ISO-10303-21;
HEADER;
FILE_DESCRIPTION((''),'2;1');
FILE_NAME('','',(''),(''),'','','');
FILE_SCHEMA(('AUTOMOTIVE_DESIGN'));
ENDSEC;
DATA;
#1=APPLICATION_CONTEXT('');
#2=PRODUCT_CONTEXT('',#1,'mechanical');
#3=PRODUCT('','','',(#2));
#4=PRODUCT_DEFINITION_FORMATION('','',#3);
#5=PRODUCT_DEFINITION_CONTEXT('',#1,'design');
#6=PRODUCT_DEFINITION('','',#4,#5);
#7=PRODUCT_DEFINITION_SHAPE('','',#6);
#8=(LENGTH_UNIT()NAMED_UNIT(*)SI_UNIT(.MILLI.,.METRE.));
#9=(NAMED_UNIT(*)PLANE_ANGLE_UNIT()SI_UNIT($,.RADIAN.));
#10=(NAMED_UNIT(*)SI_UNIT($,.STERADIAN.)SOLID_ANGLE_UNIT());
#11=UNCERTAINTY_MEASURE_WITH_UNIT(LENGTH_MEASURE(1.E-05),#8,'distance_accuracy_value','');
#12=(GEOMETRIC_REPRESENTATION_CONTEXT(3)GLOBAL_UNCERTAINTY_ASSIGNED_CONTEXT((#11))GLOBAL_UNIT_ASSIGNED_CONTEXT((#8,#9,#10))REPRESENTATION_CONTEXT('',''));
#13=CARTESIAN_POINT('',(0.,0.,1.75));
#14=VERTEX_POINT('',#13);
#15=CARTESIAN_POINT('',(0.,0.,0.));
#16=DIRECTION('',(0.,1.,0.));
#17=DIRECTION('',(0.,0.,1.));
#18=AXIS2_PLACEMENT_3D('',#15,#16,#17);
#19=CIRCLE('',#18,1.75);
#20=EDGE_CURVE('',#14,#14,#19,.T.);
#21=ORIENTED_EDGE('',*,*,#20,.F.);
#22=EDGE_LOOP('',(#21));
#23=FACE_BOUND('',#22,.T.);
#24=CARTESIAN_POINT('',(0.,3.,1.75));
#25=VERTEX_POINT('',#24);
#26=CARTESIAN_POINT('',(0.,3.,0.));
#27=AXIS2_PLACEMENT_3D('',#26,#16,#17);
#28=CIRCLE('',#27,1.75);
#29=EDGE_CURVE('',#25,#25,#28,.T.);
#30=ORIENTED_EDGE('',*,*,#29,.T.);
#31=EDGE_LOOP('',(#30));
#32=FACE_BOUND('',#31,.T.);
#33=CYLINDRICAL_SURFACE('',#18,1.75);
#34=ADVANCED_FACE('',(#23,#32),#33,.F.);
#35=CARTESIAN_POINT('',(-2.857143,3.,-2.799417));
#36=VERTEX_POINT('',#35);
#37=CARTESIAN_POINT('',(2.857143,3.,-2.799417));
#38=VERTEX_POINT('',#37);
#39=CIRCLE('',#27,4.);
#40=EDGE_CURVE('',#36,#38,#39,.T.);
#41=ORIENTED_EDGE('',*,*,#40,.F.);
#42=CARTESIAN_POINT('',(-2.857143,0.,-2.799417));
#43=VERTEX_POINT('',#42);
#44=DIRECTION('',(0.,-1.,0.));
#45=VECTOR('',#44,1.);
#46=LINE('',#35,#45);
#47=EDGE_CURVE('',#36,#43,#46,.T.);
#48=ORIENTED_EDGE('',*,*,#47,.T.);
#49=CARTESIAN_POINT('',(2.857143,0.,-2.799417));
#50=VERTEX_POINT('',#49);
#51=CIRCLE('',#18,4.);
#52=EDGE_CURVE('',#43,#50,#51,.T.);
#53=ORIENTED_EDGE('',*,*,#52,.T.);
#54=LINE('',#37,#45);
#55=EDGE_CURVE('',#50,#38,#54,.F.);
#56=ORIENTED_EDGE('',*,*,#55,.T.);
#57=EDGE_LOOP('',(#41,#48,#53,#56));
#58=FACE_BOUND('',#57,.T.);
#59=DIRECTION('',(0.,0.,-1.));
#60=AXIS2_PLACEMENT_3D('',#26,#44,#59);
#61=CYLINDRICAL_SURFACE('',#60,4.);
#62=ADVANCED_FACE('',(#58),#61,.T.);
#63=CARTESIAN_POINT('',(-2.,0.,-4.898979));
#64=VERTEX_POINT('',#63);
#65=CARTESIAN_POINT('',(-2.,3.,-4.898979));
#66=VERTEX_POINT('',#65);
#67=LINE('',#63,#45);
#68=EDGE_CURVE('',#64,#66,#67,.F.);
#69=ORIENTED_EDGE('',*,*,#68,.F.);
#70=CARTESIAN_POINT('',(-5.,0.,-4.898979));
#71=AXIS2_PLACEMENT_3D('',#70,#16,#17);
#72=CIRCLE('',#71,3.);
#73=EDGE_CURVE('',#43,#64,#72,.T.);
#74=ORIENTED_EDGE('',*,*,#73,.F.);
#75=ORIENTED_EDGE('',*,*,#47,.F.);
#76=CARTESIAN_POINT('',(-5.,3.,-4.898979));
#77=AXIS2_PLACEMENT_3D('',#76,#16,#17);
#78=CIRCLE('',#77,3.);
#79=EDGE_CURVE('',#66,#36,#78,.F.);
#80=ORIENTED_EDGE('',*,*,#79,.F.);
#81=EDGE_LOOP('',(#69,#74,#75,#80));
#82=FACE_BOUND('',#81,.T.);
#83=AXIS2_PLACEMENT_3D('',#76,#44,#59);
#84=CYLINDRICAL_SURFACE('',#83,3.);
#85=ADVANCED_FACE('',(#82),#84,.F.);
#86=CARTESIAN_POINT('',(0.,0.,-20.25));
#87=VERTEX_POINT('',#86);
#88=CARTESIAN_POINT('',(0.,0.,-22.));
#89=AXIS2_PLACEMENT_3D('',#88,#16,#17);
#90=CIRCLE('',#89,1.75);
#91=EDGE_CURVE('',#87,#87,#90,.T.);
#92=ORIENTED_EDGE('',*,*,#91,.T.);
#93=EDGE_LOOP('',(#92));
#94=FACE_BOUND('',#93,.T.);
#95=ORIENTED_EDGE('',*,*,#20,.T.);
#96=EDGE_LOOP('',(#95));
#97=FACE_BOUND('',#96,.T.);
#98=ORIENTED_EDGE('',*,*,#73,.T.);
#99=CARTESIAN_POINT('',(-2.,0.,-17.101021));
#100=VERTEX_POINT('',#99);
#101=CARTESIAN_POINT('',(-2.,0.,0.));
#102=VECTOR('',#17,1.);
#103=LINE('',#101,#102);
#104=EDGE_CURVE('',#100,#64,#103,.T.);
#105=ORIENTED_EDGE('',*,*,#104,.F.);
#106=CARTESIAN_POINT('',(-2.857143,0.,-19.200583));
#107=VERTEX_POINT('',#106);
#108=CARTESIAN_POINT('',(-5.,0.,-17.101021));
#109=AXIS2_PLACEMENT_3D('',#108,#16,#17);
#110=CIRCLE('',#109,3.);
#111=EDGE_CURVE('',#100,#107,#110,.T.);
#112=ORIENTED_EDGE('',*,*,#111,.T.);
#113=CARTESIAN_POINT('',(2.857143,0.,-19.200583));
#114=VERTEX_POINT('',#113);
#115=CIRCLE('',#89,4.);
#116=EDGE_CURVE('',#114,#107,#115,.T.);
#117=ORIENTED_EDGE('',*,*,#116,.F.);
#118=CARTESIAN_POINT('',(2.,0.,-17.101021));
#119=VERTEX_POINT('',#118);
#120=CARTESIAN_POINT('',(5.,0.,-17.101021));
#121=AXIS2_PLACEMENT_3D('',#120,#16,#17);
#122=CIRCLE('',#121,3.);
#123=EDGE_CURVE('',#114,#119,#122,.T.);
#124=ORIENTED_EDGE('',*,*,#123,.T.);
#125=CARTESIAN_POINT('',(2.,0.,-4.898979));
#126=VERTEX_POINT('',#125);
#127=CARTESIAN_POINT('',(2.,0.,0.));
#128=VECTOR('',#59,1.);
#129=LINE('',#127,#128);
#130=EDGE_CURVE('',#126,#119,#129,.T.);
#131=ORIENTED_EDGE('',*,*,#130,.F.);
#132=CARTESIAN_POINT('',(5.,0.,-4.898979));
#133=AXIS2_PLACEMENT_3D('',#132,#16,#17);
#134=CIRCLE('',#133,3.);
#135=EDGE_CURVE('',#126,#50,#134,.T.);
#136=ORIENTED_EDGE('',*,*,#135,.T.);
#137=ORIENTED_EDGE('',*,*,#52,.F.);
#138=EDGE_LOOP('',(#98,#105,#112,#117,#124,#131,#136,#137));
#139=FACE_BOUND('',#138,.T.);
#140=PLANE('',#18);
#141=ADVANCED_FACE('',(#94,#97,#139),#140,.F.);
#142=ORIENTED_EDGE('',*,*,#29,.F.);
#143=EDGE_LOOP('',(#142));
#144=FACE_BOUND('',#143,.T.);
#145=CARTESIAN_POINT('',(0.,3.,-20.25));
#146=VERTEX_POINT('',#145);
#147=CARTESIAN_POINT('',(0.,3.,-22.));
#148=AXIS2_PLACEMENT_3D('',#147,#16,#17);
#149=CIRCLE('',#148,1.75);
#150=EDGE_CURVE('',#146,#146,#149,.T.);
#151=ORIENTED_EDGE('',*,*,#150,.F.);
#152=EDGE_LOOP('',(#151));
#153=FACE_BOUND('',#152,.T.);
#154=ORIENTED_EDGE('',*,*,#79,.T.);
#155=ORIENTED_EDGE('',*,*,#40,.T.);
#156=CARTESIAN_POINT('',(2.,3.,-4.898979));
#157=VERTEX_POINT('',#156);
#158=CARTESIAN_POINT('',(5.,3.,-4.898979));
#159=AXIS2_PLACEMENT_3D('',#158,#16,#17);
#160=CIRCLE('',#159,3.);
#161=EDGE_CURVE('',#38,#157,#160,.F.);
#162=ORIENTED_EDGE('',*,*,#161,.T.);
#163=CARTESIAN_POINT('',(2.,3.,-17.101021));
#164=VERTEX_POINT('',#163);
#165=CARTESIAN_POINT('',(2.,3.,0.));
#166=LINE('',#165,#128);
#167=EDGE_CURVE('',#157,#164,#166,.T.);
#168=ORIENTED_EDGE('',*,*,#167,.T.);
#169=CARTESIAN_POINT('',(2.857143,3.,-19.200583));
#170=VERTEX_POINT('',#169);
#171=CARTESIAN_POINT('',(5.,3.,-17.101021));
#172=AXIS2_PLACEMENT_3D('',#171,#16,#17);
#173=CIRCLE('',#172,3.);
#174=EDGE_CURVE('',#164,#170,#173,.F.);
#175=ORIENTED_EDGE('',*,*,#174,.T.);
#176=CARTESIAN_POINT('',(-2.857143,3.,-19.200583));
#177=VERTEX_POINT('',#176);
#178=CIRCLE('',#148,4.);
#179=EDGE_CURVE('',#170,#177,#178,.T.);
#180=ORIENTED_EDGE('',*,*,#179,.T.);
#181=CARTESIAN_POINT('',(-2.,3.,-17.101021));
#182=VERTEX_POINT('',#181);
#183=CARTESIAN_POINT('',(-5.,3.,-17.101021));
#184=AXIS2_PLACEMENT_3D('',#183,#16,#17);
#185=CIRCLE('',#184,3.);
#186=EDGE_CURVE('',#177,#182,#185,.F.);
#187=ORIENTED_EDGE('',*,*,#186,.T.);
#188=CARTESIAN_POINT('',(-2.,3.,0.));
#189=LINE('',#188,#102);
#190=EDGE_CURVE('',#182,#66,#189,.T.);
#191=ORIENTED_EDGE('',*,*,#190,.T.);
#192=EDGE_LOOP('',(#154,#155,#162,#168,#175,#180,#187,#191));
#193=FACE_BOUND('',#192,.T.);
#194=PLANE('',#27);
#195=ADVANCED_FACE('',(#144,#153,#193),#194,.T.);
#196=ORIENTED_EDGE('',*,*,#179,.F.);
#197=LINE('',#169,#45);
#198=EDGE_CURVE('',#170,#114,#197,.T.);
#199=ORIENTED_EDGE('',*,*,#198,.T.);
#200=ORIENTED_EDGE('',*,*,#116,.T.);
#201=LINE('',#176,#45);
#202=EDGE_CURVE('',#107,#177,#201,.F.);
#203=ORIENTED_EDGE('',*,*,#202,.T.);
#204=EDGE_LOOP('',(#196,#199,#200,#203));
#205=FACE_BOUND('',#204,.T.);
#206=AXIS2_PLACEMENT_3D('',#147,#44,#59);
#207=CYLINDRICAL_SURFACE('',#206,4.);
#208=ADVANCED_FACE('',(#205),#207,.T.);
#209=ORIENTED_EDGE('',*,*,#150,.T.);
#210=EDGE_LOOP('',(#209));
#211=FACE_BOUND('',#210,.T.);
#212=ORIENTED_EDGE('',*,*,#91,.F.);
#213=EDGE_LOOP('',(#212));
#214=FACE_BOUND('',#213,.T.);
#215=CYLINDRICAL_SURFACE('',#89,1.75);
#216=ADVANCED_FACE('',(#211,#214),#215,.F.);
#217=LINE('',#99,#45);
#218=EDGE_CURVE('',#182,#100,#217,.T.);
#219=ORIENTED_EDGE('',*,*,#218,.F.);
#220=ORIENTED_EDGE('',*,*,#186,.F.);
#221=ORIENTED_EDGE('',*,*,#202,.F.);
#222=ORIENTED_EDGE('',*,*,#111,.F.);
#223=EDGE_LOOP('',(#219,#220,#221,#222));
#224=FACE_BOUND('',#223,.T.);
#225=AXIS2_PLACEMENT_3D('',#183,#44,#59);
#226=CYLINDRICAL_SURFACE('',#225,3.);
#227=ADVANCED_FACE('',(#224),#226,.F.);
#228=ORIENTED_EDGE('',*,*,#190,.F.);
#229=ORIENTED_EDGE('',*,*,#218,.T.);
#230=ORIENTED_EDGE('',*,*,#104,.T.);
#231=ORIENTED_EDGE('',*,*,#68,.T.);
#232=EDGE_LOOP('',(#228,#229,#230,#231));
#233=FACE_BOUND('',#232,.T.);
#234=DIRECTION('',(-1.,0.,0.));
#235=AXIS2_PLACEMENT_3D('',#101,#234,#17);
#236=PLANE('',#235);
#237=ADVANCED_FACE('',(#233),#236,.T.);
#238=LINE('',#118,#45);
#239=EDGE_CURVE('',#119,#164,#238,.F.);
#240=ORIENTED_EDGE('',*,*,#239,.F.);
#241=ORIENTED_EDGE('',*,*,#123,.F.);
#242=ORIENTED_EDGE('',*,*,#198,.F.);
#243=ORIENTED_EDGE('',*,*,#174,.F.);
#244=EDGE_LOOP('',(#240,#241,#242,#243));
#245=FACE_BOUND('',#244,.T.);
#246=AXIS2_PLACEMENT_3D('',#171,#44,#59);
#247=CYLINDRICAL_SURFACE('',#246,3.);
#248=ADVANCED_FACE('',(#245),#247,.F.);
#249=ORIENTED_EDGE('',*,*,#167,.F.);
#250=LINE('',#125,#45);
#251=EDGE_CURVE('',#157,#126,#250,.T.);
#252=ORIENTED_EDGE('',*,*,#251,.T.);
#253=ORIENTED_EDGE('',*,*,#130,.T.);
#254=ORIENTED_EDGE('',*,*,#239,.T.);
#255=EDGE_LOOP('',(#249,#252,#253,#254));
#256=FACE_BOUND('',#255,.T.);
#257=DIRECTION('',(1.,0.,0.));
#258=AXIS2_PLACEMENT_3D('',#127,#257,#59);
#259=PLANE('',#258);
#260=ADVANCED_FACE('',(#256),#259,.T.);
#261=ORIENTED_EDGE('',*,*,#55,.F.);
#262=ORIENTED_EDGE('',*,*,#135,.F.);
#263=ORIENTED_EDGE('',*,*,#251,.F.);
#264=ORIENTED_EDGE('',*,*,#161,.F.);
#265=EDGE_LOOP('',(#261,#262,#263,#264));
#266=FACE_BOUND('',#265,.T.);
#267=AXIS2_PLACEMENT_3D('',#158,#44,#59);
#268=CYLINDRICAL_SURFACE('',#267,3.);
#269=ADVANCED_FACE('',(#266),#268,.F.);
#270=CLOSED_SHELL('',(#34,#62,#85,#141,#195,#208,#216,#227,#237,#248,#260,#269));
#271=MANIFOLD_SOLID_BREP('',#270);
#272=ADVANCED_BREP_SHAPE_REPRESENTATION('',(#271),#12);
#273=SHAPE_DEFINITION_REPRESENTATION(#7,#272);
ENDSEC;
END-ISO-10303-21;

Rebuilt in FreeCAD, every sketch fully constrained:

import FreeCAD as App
import Part
import Sketcher
from FreeCAD import Vector


def edges_at(feature, points):
    """Names of the edges that pass closest to the given points."""
    edges = feature.Shape.Edges
    near = lambda p: min(range(len(edges)), key=lambda i: edges[i].distToShape(Part.Vertex(*p))[0])
    return sorted({f"Edge{near(p) + 1}" for p in points})


def add_polygon(sketch, points):
    """Adds a closed chain of lines whose ends are joined by coincident constraints."""
    first, n = sketch.GeometryCount, len(points)
    for a, b in zip(points, points[1:] + points[:1]):
        sketch.addGeometry(Part.LineSegment(App.Vector(*a, 0), App.Vector(*b, 0)), False)
    for i in range(n):
        sketch.addConstraint(Sketcher.Constraint("Coincident", first + i, 2, first + (i + 1) % n, 1))

doc = App.newDocument("Part")
body = doc.addObject("PartDesign::Body", "Body")

# Sketch on XZ plane
sketch1 = doc.addObject("Sketcher::SketchObject", "Sketch")
body.addObject(sketch1)
sketch1.AttachmentSupport = (doc.XZ_Plane, [""])
sketch1.MapMode = "FlatFace"
sketch1.addGeometry(Part.Circle(Vector(0, 0, 0), Vector(0, 0, 1), 4), False)
sketch1.addConstraint([
    Sketcher.Constraint("Coincident", 0, 3, -1, 1),
    Sketcher.Constraint("Diameter", 0, 8.0),
])
pad1 = doc.addObject("PartDesign::Pad", "Pad")
body.addObject(pad1)
pad1.Profile = sketch1
pad1.Length = 3
pad1.Reversed = True
body2 = doc.addObject("PartDesign::Body", "Body001")

# Sketch on XZ plane
sketch2 = doc.addObject("Sketcher::SketchObject", "Sketch001")
body2.addObject(sketch2)
sketch2.AttachmentSupport = (doc.getObject("XZ_Plane001"), [""])
sketch2.MapMode = "FlatFace"
sketch2.addGeometry(Part.Circle(Vector(0, -22, 0), Vector(0, 0, 1), 4), False)
sketch2.addConstraint([
    Sketcher.Constraint("PointOnObject", 0, 3, -2),
    Sketcher.Constraint("Diameter", 0, 8.0),
    Sketcher.Constraint("DistanceY", 0, 3, -1, 1, 22.0),
])
pad2 = doc.addObject("PartDesign::Pad", "Pad001")
body2.addObject(pad2)
pad2.Profile = sketch2
pad2.Length = 3
pad2.Reversed = True
body.AllowCompound = True
doc.recompute()

boolean = doc.addObject("PartDesign::Boolean", "Boolean")
body.addObject(boolean)
boolean.Type = "Fuse"
boolean.addObjects([body2])

# Sketch on XZ plane
sketch3 = doc.addObject("Sketcher::SketchObject", "Sketch002")
body.addObject(sketch3)
sketch3.AttachmentSupport = (doc.XZ_Plane, [""])
sketch3.MapMode = "FlatFace"
sketch3.AttachmentOffset = App.Placement(Vector(0, 0, -3), App.Rotation())
add_polygon(sketch3, [(-2, -22), (-2, 0), (2, 0), (2, -22)])  # lines 0-3
sketch3.addConstraint([
    Sketcher.Constraint("Vertical", 0),
    Sketcher.Constraint("Horizontal", 1),
    Sketcher.Constraint("Vertical", 2),
    Sketcher.Constraint("Horizontal", 3),
    Sketcher.Constraint("Symmetric", 0, 2, 1, 2, -1, 1),
    Sketcher.Constraint("DistanceX", 1, 1, 1, 2, 4.0),
    Sketcher.Constraint("DistanceY", 0, 1, 0, 2, 22.0),
])
pad3 = doc.addObject("PartDesign::Pad", "Pad002")
body.addObject(pad3)
pad3.Profile = sketch3
pad3.Length = 3
doc.recompute()

fillet = doc.addObject("PartDesign::Fillet", "Fillet")
body.addObject(fillet)
fillet.Base = (pad3, edges_at(pad3, [
    (2, 1.5, -3.464),
    (-2, 1.5, -3.464),
    (-2, 1.5, -18.536),
    (2, 1.5, -18.536),
]))
fillet.Radius = 3

# Sketch on XZ plane
sketch4 = doc.addObject("Sketcher::SketchObject", "Sketch003")
body.addObject(sketch4)
sketch4.AttachmentSupport = (doc.XZ_Plane, [""])
sketch4.MapMode = "FlatFace"
sketch4.AttachmentOffset = App.Placement(Vector(0, 0, -3), App.Rotation())
sketch4.addGeometry([
    Part.Circle(Vector(0, -22, 0), Vector(0, 0, 1), 1.75),
    Part.Circle(Vector(0, 0, 0), Vector(0, 0, 1), 1.75),
], False)
sketch4.addConstraint([
    Sketcher.Constraint("Coincident", 1, 3, -1, 1),
    Sketcher.Constraint("Equal", 0, 1),
    Sketcher.Constraint("PointOnObject", 0, 3, -2),
    Sketcher.Constraint("Diameter", 0, 3.5),
    Sketcher.Constraint("DistanceY", 0, 3, -1, 1, 22.0),
])
pocket1 = doc.addObject("PartDesign::Pocket", "Pocket")
body.addObject(pocket1)
pocket1.Profile = sketch4
pocket1.Length = 3
pocket1.Reversed = True

doc.recompute()
